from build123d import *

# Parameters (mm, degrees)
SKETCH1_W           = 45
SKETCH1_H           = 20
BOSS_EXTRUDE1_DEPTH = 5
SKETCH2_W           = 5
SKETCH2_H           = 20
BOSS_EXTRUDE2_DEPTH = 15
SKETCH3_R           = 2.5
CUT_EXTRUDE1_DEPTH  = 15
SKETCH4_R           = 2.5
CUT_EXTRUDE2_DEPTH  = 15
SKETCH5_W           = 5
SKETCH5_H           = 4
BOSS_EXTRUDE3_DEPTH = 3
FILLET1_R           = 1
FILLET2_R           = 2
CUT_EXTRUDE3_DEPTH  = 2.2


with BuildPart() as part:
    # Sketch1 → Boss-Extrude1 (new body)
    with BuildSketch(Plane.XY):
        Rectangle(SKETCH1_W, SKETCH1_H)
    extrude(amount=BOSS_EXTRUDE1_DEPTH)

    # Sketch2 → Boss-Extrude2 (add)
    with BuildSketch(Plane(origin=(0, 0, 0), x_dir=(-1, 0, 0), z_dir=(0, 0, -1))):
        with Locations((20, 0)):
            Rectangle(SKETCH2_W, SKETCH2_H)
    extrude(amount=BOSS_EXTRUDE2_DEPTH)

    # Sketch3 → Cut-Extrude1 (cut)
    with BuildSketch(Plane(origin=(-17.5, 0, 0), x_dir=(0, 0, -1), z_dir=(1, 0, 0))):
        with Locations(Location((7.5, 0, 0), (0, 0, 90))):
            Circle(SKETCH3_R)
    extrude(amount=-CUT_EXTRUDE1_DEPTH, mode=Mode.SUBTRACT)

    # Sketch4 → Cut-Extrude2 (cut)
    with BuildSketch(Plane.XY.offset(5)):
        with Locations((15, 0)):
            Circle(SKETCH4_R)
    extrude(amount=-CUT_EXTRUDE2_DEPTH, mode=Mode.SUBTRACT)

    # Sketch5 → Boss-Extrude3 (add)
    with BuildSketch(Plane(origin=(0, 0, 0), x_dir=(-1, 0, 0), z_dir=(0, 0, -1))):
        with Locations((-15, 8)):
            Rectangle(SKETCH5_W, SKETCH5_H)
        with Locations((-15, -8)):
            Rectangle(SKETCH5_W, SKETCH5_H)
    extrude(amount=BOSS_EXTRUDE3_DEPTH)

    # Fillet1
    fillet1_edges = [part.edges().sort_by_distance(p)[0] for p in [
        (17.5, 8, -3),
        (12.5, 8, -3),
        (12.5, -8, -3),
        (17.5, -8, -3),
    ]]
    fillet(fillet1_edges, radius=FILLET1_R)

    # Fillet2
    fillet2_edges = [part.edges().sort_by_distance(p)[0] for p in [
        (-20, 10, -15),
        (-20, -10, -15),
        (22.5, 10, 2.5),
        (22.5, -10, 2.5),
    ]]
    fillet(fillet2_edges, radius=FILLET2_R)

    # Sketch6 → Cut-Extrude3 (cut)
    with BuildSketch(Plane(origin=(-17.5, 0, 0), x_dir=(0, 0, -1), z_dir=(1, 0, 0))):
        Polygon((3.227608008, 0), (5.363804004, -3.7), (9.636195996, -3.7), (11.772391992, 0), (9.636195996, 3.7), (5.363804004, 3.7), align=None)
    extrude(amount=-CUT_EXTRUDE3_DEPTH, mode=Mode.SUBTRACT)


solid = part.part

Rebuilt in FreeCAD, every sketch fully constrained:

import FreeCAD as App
import Part
import Sketcher
from FreeCAD import Vector
Q = App.Units.Quantity


def edges_at(feature, points):
    """Names of the edges that pass closest to the given points."""
    edges = feature.Shape.Edges
    near = lambda p: min(range(len(edges)), key=lambda i: edges[i].distToShape(Part.Vertex(*p))[0])
    return sorted({f"Edge{near(p) + 1}" for p in points})


def add_polygon(sketch, points):
    """Adds a closed chain of lines whose ends are joined by coincident constraints."""
    first, n = sketch.GeometryCount, len(points)
    for a, b in zip(points, points[1:] + points[:1]):
        sketch.addGeometry(Part.LineSegment(App.Vector(*a, 0), App.Vector(*b, 0)), False)
    for i in range(n):
        sketch.addConstraint(Sketcher.Constraint("Coincident", first + i, 2, first + (i + 1) % n, 1))

doc = App.newDocument("Part")
body = doc.addObject("PartDesign::Body", "Body")

# Sketch on XY plane
sketch1 = body.newObject("Sketcher::SketchObject", "Sketch")
sketch1.AttachmentSupport = (doc.getObject("XY_Plane"), [""])
sketch1.MapMode = "FlatFace"
add_polygon(sketch1, [(-22, 10), (-22, -10), (22, -10), (22, 10)])  # lines 0-3
sketch1.addConstraint([
    Sketcher.Constraint("Vertical", 0),
    Sketcher.Constraint("Horizontal", 1),
    Sketcher.Constraint("Vertical", 2),
    Sketcher.Constraint("Horizontal", 3),
    Sketcher.Constraint("Symmetric", 0, 2, 2, 2, -1, 1),
    Sketcher.Constraint("DistanceX", 1, 1, 1, 2, 45.0),
    Sketcher.Constraint("DistanceY", 0, 2, 0, 1, 20.0),
])
pad1 = body.newObject("PartDesign::Pad", "Pad")
pad1.Profile = sketch1
pad1.Length = 5

# Sketch on XY plane
sketch2 = body.newObject("Sketcher::SketchObject", "Sketch001")
sketch2.AttachmentSupport = (doc.getObject("XY_Plane"), [""])
sketch2.MapMode = "FlatFace"
add_polygon(sketch2, [(-18, 10), (-18, -10), (-22, -10), (-22, 10)])  # lines 0-3
sketch2.addConstraint([
    Sketcher.Constraint("Vertical", 0),
    Sketcher.Constraint("Horizontal", 1),
    Sketcher.Constraint("Vertical", 2),
    Sketcher.Constraint("Horizontal", 3),
    Sketcher.Constraint("DistanceX", 1, 2, 1, 1, 5.0),
    Sketcher.Constraint("DistanceY", 0, 2, 0, 1, 20.0),
    Sketcher.Constraint("DistanceY", 0, 2, -1, 1, 10.0),
    Sketcher.Constraint("DistanceX", 0, 2, -1, 1, 17.5),
])
pad2 = body.newObject("PartDesign::Pad", "Pad001")
pad2.Profile = sketch2
pad2.Length = 15
pad2.Reversed = True

# Sketch on YZ plane
sketch3 = body.newObject("Sketcher::SketchObject", "Sketch002")
sketch3.AttachmentSupport = (doc.getObject("YZ_Plane"), [""])
sketch3.MapMode = "FlatFace"
sketch3.AttachmentOffset = App.Placement(Vector(0, 0, -17.5), App.Rotation())
sketch3.addGeometry(Part.Circle(Vector(0, -7.5, 0), Vector(0, 0, 1), 2.5), False)
sketch3.addConstraint([
    Sketcher.Constraint("PointOnObject", 0, 3, -2),
    Sketcher.Constraint("Diameter", 0, 5.0),
    Sketcher.Constraint("DistanceY", 0, 3, -1, 1, 7.5),
])
pocket1 = body.newObject("PartDesign::Pocket", "Pocket")
pocket1.Profile = sketch3
pocket1.Length = 15

# Sketch on XY plane
sketch4 = body.newObject("Sketcher::SketchObject", "Sketch003")
sketch4.AttachmentSupport = (doc.getObject("XY_Plane"), [""])
sketch4.MapMode = "FlatFace"
sketch4.AttachmentOffset = App.Placement(Vector(0, 0, 5), App.Rotation())
sketch4.addGeometry(Part.Circle(Vector(15, 0, 0), Vector(0, 0, 1), 2.5), False)
sketch4.addConstraint([
    Sketcher.Constraint("PointOnObject", 0, 3, -1),
    Sketcher.Constraint("Diameter", 0, 5.0),
    Sketcher.Constraint("DistanceX", -1, 1, 0, 3, 15.0),
])
pocket2 = body.newObject("PartDesign::Pocket", "Pocket001")
pocket2.Profile = sketch4
pocket2.Length = 15

# Sketch on XY plane
sketch5 = body.newObject("Sketcher::SketchObject", "Sketch004")
sketch5.AttachmentSupport = (doc.getObject("XY_Plane"), [""])
sketch5.MapMode = "FlatFace"
add_polygon(sketch5, [(17.5, 10), (17.5, 6), (12.5, 6), (12.5, 10)])  # lines 0-3
add_polygon(sketch5, [(17.5, -6), (17.5, -10), (12.5, -10), (12.5, -6)])  # lines 4-7
sketch5.addConstraint([
    Sketcher.Constraint("Vertical", 0),
    Sketcher.Constraint("Horizontal", 1),
    Sketcher.Constraint("Vertical", 2),
    Sketcher.Constraint("Horizontal", 3),
    Sketcher.Constraint("Vertical", 4),
    Sketcher.Constraint("Horizontal", 5),
    Sketcher.Constraint("Vertical", 6),
    Sketcher.Constraint("Horizontal", 7),
    Sketcher.Constraint("Symmetric", 3, 2, 4, 2, -1),
    Sketcher.Constraint("Symmetric", 1, 2, 6, 2, -1),
    Sketcher.Constraint("DistanceX", 1, 2, 1, 1, 5.0),
    Sketcher.Constraint("DistanceY", 0, 2, 0, 1, 4.0),
    Sketcher.Constraint("DistanceY", -1, 1, 0, 2, 6.0),
    Sketcher.Constraint("DistanceX", -1, 1, 0, 2, 17.5),
])
pad3 = body.newObject("PartDesign::Pad", "Pad002")
pad3.Profile = sketch5
pad3.Length = 3
pad3.Reversed = True
doc.recompute()

fillet = body.newObject("PartDesign::Fillet", "Fillet")
fillet.Base = (pad3, edges_at(pad3, [
    (17.5, 8, -3),
    (12.5, 8, -3),
    (12.5, -8, -3),
    (17.5, -8, -3),
]))
fillet.Radius = 1
doc.recompute()

fillet2 = body.newObject("PartDesign::Fillet", "Fillet001")
fillet2.Base = (fillet, edges_at(fillet, [
    (-20, 10, -15),
    (-20, -10, -15),
    (22.5, 10, 2.5),
    (22.5, -10, 2.5),
]))
fillet2.Radius = 2

# Sketch on YZ plane
sketch6 = body.newObject("Sketcher::SketchObject", "Sketch005")
sketch6.AttachmentSupport = (doc.getObject("YZ_Plane"), [""])
sketch6.MapMode = "FlatFace"
sketch6.AttachmentOffset = App.Placement(Vector(0, 0, -17.5), App.Rotation())
add_polygon(sketch6, [(0, -3.2), (-3.7, -5.4), (-3.7, -9.6), (0, -11.8), (3.7, -9.6), (3.7, -5.4)])  # lines 0-5
sketch6.addConstraint([
    Sketcher.Constraint("Vertical", 1),
    Sketcher.Constraint("Vertical", 4),
    Sketcher.Constraint("Symmetric", 1, 2, 3, 2, -2),
    Sketcher.Constraint("PointOnObject", 2, 2, -2),
    Sketcher.Constraint("PointOnObject", 5, 2, -2),
    Sketcher.Constraint("Parallel", 0, 3),
    Sketcher.Constraint("Parallel", 2, 5),
    Sketcher.Constraint("Angle", 0, Q("-150 deg")),
    Sketcher.Constraint("DistanceX", 0, 2, -1, 1, 3.7),
    Sketcher.Constraint("DistanceY", 1, 2, 1, 1, 4.272392),
    Sketcher.Constraint("DistanceY", 2, 2, -1, 1, 11.772392),
])
pocket3 = body.newObject("PartDesign::Pocket", "Pocket002")
pocket3.Profile = sketch6
pocket3.Length = 2.2

doc.recompute()
